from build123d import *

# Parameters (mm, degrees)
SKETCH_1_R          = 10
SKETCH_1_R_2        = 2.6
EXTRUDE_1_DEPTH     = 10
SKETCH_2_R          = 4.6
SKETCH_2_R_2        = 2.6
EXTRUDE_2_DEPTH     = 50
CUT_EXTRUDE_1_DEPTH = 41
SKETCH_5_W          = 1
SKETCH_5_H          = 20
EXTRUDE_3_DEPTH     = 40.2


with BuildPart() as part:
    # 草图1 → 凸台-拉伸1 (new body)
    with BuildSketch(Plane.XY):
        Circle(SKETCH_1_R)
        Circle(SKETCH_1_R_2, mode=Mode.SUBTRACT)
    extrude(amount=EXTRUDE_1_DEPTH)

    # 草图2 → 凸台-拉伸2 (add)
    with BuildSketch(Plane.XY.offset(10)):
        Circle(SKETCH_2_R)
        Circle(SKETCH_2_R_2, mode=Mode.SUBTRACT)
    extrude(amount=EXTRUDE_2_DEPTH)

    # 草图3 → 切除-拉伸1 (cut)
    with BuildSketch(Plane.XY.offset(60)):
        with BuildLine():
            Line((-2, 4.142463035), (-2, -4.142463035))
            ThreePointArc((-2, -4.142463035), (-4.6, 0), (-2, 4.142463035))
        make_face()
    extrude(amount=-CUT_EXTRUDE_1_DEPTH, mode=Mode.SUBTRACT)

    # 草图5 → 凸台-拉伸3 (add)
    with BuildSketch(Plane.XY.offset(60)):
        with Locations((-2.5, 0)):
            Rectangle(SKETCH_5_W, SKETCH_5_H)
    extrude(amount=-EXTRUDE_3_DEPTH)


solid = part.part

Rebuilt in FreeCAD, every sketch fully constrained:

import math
import FreeCAD as App
import Part
import Sketcher

V = App.Vector
Q = App.Units.Quantity


def add_polygon(sketch, points):
    """Adds a closed chain of lines whose ends are joined by coincident constraints."""
    first, n = sketch.GeometryCount, len(points)
    for a, b in zip(points, points[1:] + points[:1]):
        sketch.addGeometry(Part.LineSegment(App.Vector(*a, 0), App.Vector(*b, 0)), False)
    for i in range(n):
        sketch.addConstraint(Sketcher.Constraint("Coincident", first + i, 2, first + (i + 1) % n, 1))

doc = App.newDocument("Part")
body = doc.addObject("PartDesign::Body", "Body")

# Sketch on XY plane
sketch1 = doc.addObject("Sketcher::SketchObject", "Sketch")
body.addObject(sketch1)
sketch1.AttachmentSupport = (doc.XY_Plane, [""])
sketch1.MapMode = "FlatFace"
sketch1.addGeometry([
    Part.Circle(V(0, 0, 0), V(0, 0, 1), 10),
    Part.Circle(V(0, 0, 0), V(0, 0, 1), 2.6),
], False)
sketch1.addConstraint([
    Sketcher.Constraint("Coincident", 0, 3, -1, 1),
    Sketcher.Constraint("Coincident", 1, 3, -1, 1),
    Sketcher.Constraint("Diameter", 0, Q("20 mm")),
    Sketcher.Constraint("Diameter", 1, Q("5.2 mm")),
])
pad1 = doc.addObject("PartDesign::Pad", "Pad")
body.addObject(pad1)
pad1.Profile = sketch1
pad1.Length = 10

# Sketch on XY plane
sketch2 = doc.addObject("Sketcher::SketchObject", "Sketch001")
body.addObject(sketch2)
sketch2.AttachmentSupport = (doc.XY_Plane, [""])
sketch2.MapMode = "FlatFace"
sketch2.AttachmentOffset = App.Placement(V(0, 0, 10), App.Rotation())
sketch2.addGeometry([
    Part.Circle(V(0, 0, 0), V(0, 0, 1), 4.6),
    Part.Circle(V(0, 0, 0), V(0, 0, 1), 2.6),
], False)
sketch2.addConstraint([
    Sketcher.Constraint("Coincident", 0, 3, -1, 1),
    Sketcher.Constraint("Coincident", 1, 3, -1, 1),
    Sketcher.Constraint("Diameter", 0, Q("9.2 mm")),
    Sketcher.Constraint("Diameter", 1, Q("5.2 mm")),
])
pad2 = doc.addObject("PartDesign::Pad", "Pad001")
body.addObject(pad2)
pad2.Profile = sketch2
pad2.Length = 50

# Sketch on XY plane
sketch3 = doc.addObject("Sketcher::SketchObject", "Sketch002")
body.addObject(sketch3)
sketch3.AttachmentSupport = (doc.XY_Plane, [""])
sketch3.MapMode = "FlatFace"
sketch3.AttachmentOffset = App.Placement(V(0, 0, 60), App.Rotation())
sketch3.addGeometry([
    Part.LineSegment(V(-2, -4.142463, 0), V(-2, 4.142463, 0)),
    Part.ArcOfCircle(Part.Circle(V(0, 0, 0), V(0, 0, 1), 4.6), math.radians(115.771462), math.radians(244.228538)),
], False)
sketch3.addConstraint([
    Sketcher.Constraint("Coincident", 0, 1, 1, 2),
    Sketcher.Constraint("Coincident", 1, 1, 0, 2),
    Sketcher.Constraint("Vertical", 0),
    Sketcher.Constraint("Coincident", 1, 3, -1, 1),
    Sketcher.Constraint("Radius", 1, Q("4.6 mm")),
    Sketcher.Constraint("DistanceX", 0, 1, -1, 1, Q("2 mm")),
])
pocket1 = doc.addObject("PartDesign::Pocket", "Pocket")
body.addObject(pocket1)
pocket1.Profile = sketch3
pocket1.Length = 41

# Sketch on XY plane
sketch4 = doc.addObject("Sketcher::SketchObject", "Sketch003")
body.addObject(sketch4)
sketch4.AttachmentSupport = (doc.XY_Plane, [""])
sketch4.MapMode = "FlatFace"
sketch4.AttachmentOffset = App.Placement(V(0, 0, 60), App.Rotation())
add_polygon(sketch4, [(-3, 10), (-3, -10), (-2, -10), (-2, 10)])  # lines 0-3
sketch4.addConstraint([
    Sketcher.Constraint("Vertical", 0),
    Sketcher.Constraint("Horizontal", 1),
    Sketcher.Constraint("Vertical", 2),
    Sketcher.Constraint("Horizontal", 3),
    Sketcher.Constraint("DistanceX", 1, 1, 1, 2, Q("1 mm")),
    Sketcher.Constraint("DistanceY", 0, 2, 0, 1, Q("20 mm")),
    Sketcher.Constraint("DistanceX", 0, 2, -1, 1, Q("3 mm")),
    Sketcher.Constraint("DistanceY", 0, 2, -1, 1, Q("10 mm")),
])
pad3 = doc.addObject("PartDesign::Pad", "Pad002")
body.addObject(pad3)
pad3.Profile = sketch4
pad3.Length = 40.2
pad3.Reversed = True

doc.recompute()
